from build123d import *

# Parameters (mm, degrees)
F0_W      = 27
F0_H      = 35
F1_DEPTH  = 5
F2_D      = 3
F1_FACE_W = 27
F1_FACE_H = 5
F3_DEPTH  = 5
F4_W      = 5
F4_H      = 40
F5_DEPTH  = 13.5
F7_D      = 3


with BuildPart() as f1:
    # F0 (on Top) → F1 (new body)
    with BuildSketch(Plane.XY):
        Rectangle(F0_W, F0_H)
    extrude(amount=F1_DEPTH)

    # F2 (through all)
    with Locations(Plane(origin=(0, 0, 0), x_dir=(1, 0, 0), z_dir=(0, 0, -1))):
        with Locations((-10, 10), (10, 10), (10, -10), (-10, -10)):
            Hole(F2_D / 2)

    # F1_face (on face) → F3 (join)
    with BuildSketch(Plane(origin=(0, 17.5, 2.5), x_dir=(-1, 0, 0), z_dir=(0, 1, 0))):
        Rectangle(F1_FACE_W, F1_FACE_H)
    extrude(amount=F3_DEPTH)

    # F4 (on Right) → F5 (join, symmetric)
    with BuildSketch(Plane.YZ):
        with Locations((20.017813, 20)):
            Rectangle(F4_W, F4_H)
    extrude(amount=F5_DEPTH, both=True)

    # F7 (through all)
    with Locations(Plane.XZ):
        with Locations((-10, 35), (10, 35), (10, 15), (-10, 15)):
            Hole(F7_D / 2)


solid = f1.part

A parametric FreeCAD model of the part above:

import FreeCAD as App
import Part
import Sketcher

V = App.Vector


def add_polygon(sketch, points):
    """Adds a closed chain of lines whose ends are joined by coincident constraints."""
    first, n = sketch.GeometryCount, len(points)
    for a, b in zip(points, points[1:] + points[:1]):
        sketch.addGeometry(Part.LineSegment(App.Vector(*a, 0), App.Vector(*b, 0)), False)
    for i in range(n):
        sketch.addConstraint(Sketcher.Constraint("Coincident", first + i, 2, first + (i + 1) % n, 1))

doc = App.newDocument("Part")
body = doc.addObject("PartDesign::Body", "Body")

# Sketch on XY plane
sketch1 = body.newObject("Sketcher::SketchObject", "Sketch")
sketch1.AttachmentSupport = (doc.getObject("XY_Plane"), [""])
sketch1.MapMode = "FlatFace"
add_polygon(sketch1, [(-13.5, 17.5), (-13.5, -17.5), (13.5, -17.5), (13.5, 17.5)])  # lines 0-3
sketch1.addConstraint([
    Sketcher.Constraint("Vertical", 0),
    Sketcher.Constraint("Horizontal", 1),
    Sketcher.Constraint("Vertical", 2),
    Sketcher.Constraint("Horizontal", 3),
    Sketcher.Constraint("Symmetric", 0, 2, 2, 2, -1, 1),
    Sketcher.Constraint("DistanceX", 1, 1, 1, 2, 27.0),
    Sketcher.Constraint("DistanceY", 0, 2, 0, 1, 35.0),
])
pad1 = body.newObject("PartDesign::Pad", "Pad")
pad1.Profile = sketch1
pad1.Length = 5

# Sketch on XY plane
sketch2 = body.newObject("Sketcher::SketchObject", "Sketch001")
sketch2.AttachmentSupport = (doc.getObject("XY_Plane"), [""])
sketch2.MapMode = "FlatFace"
sketch2.addGeometry([
    Part.Circle(V(-10, -10, 0), V(0, 0, 1), 1.5),
    Part.Circle(V(10, -10, 0), V(0, 0, 1), 1.5),
    Part.Circle(V(10, 10, 0), V(0, 0, 1), 1.5),
    Part.Circle(V(-10, 10, 0), V(0, 0, 1), 1.5),
], False)
sketch2.addConstraint([
    Sketcher.Constraint("Equal", 0, 1),
    Sketcher.Constraint("Equal", 1, 2),
    Sketcher.Constraint("Equal", 2, 3),
    Sketcher.Constraint("Symmetric", 0, 3, 2, 3, -1, 1),
    Sketcher.Constraint("Symmetric", 1, 3, 3, 3, -1, 1),
    Sketcher.Constraint("Symmetric", 0, 3, 1, 3, -2),
    Sketcher.Constraint("Diameter", 0, 3.0),
    Sketcher.Constraint("DistanceX", 0, 3, -1, 1, 10.0),
    Sketcher.Constraint("DistanceY", 0, 3, -1, 1, 10.0),
])
doc.recompute()
hole = body.newObject("PartDesign::Hole", "Hole")
hole.Profile = sketch2
hole.ThreadType = "None"
hole.Diameter = 3
hole.DepthType = "ThroughAll"
hole.Reversed = True

# Sketch on XZ plane
sketch3 = body.newObject("Sketcher::SketchObject", "Sketch002")
sketch3.AttachmentSupport = (doc.getObject("XZ_Plane"), [""])
sketch3.MapMode = "FlatFace"
sketch3.AttachmentOffset = App.Placement(V(0, 0, -17.5), App.Rotation())
add_polygon(sketch3, [(13.5, 5), (13.5, 0), (-13.5, 0), (-13.5, 5)])  # lines 0-3
sketch3.addConstraint([
    Sketcher.Constraint("Vertical", 0),
    Sketcher.Constraint("Horizontal", 1),
    Sketcher.Constraint("Vertical", 2),
    Sketcher.Constraint("Horizontal", 3),
    Sketcher.Constraint("Symmetric", 0, 2, 1, 2, -1, 1),
    Sketcher.Constraint("DistanceX", 1, 2, 1, 1, 27.0),
    Sketcher.Constraint("DistanceY", 0, 2, 0, 1, 5.0),
])
pad2 = body.newObject("PartDesign::Pad", "Pad001")
pad2.Profile = sketch3
pad2.Length = 5
pad2.Reversed = True

# Sketch on YZ plane
sketch4 = body.newObject("Sketcher::SketchObject", "Sketch003")
sketch4.AttachmentSupport = (doc.getObject("YZ_Plane"), [""])
sketch4.MapMode = "FlatFace"
add_polygon(sketch4, [(17.517813, 40), (17.517813, 0), (22.517813, 0), (22.517813, 40)])  # lines 0-3
sketch4.addConstraint([
    Sketcher.Constraint("Vertical", 0),
    Sketcher.Constraint("Horizontal", 1),
    Sketcher.Constraint("Vertical", 2),
    Sketcher.Constraint("Horizontal", 3),
    Sketcher.Constraint("PointOnObject", 0, 2, -1),
    Sketcher.Constraint("DistanceX", 1, 1, 1, 2, 5.0),
    Sketcher.Constraint("DistanceY", 0, 2, 0, 1, 40.0),
    Sketcher.Constraint("DistanceX", -1, 1, 0, 2, 17.517813),
])
pad3 = body.newObject("PartDesign::Pad", "Pad002")
pad3.Profile = sketch4
pad3.Length = 27
pad3.Midplane = True

# Sketch on XZ plane
sketch5 = body.newObject("Sketcher::SketchObject", "Sketch004")
sketch5.AttachmentSupport = (doc.getObject("XZ_Plane"), [""])
sketch5.MapMode = "FlatFace"
sketch5.addGeometry([
    Part.Circle(V(-10, 35, 0), V(0, 0, 1), 1.5),
    Part.Circle(V(10, 35, 0), V(0, 0, 1), 1.5),
    Part.Circle(V(10, 15, 0), V(0, 0, 1), 1.5),
    Part.Circle(V(-10, 15, 0), V(0, 0, 1), 1.5),
], False)
sketch5.addConstraint([
    Sketcher.Constraint("Equal", 0, 1),
    Sketcher.Constraint("Equal", 1, 2),
    Sketcher.Constraint("Equal", 2, 3),
    Sketcher.Constraint("Symmetric", 0, 3, 1, 3, -2),
    Sketcher.Constraint("Symmetric", 2, 3, 3, 3, -2),
    Sketcher.Constraint("Vertical", 1, 3, 2, 3),
    Sketcher.Constraint("Diameter", 0, 3.0),
    Sketcher.Constraint("DistanceX", 0, 3, -1, 1, 10.0),
    Sketcher.Constraint("DistanceY", -1, 1, 0, 3, 35.0),
    Sketcher.Constraint("DistanceY", -1, 1, 2, 3, 15.0),
])
doc.recompute()
hole2 = body.newObject("PartDesign::Hole", "Hole001")
hole2.Profile = sketch5
hole2.ThreadType = "None"
hole2.Diameter = 3
hole2.DepthType = "ThroughAll"

doc.recompute()
